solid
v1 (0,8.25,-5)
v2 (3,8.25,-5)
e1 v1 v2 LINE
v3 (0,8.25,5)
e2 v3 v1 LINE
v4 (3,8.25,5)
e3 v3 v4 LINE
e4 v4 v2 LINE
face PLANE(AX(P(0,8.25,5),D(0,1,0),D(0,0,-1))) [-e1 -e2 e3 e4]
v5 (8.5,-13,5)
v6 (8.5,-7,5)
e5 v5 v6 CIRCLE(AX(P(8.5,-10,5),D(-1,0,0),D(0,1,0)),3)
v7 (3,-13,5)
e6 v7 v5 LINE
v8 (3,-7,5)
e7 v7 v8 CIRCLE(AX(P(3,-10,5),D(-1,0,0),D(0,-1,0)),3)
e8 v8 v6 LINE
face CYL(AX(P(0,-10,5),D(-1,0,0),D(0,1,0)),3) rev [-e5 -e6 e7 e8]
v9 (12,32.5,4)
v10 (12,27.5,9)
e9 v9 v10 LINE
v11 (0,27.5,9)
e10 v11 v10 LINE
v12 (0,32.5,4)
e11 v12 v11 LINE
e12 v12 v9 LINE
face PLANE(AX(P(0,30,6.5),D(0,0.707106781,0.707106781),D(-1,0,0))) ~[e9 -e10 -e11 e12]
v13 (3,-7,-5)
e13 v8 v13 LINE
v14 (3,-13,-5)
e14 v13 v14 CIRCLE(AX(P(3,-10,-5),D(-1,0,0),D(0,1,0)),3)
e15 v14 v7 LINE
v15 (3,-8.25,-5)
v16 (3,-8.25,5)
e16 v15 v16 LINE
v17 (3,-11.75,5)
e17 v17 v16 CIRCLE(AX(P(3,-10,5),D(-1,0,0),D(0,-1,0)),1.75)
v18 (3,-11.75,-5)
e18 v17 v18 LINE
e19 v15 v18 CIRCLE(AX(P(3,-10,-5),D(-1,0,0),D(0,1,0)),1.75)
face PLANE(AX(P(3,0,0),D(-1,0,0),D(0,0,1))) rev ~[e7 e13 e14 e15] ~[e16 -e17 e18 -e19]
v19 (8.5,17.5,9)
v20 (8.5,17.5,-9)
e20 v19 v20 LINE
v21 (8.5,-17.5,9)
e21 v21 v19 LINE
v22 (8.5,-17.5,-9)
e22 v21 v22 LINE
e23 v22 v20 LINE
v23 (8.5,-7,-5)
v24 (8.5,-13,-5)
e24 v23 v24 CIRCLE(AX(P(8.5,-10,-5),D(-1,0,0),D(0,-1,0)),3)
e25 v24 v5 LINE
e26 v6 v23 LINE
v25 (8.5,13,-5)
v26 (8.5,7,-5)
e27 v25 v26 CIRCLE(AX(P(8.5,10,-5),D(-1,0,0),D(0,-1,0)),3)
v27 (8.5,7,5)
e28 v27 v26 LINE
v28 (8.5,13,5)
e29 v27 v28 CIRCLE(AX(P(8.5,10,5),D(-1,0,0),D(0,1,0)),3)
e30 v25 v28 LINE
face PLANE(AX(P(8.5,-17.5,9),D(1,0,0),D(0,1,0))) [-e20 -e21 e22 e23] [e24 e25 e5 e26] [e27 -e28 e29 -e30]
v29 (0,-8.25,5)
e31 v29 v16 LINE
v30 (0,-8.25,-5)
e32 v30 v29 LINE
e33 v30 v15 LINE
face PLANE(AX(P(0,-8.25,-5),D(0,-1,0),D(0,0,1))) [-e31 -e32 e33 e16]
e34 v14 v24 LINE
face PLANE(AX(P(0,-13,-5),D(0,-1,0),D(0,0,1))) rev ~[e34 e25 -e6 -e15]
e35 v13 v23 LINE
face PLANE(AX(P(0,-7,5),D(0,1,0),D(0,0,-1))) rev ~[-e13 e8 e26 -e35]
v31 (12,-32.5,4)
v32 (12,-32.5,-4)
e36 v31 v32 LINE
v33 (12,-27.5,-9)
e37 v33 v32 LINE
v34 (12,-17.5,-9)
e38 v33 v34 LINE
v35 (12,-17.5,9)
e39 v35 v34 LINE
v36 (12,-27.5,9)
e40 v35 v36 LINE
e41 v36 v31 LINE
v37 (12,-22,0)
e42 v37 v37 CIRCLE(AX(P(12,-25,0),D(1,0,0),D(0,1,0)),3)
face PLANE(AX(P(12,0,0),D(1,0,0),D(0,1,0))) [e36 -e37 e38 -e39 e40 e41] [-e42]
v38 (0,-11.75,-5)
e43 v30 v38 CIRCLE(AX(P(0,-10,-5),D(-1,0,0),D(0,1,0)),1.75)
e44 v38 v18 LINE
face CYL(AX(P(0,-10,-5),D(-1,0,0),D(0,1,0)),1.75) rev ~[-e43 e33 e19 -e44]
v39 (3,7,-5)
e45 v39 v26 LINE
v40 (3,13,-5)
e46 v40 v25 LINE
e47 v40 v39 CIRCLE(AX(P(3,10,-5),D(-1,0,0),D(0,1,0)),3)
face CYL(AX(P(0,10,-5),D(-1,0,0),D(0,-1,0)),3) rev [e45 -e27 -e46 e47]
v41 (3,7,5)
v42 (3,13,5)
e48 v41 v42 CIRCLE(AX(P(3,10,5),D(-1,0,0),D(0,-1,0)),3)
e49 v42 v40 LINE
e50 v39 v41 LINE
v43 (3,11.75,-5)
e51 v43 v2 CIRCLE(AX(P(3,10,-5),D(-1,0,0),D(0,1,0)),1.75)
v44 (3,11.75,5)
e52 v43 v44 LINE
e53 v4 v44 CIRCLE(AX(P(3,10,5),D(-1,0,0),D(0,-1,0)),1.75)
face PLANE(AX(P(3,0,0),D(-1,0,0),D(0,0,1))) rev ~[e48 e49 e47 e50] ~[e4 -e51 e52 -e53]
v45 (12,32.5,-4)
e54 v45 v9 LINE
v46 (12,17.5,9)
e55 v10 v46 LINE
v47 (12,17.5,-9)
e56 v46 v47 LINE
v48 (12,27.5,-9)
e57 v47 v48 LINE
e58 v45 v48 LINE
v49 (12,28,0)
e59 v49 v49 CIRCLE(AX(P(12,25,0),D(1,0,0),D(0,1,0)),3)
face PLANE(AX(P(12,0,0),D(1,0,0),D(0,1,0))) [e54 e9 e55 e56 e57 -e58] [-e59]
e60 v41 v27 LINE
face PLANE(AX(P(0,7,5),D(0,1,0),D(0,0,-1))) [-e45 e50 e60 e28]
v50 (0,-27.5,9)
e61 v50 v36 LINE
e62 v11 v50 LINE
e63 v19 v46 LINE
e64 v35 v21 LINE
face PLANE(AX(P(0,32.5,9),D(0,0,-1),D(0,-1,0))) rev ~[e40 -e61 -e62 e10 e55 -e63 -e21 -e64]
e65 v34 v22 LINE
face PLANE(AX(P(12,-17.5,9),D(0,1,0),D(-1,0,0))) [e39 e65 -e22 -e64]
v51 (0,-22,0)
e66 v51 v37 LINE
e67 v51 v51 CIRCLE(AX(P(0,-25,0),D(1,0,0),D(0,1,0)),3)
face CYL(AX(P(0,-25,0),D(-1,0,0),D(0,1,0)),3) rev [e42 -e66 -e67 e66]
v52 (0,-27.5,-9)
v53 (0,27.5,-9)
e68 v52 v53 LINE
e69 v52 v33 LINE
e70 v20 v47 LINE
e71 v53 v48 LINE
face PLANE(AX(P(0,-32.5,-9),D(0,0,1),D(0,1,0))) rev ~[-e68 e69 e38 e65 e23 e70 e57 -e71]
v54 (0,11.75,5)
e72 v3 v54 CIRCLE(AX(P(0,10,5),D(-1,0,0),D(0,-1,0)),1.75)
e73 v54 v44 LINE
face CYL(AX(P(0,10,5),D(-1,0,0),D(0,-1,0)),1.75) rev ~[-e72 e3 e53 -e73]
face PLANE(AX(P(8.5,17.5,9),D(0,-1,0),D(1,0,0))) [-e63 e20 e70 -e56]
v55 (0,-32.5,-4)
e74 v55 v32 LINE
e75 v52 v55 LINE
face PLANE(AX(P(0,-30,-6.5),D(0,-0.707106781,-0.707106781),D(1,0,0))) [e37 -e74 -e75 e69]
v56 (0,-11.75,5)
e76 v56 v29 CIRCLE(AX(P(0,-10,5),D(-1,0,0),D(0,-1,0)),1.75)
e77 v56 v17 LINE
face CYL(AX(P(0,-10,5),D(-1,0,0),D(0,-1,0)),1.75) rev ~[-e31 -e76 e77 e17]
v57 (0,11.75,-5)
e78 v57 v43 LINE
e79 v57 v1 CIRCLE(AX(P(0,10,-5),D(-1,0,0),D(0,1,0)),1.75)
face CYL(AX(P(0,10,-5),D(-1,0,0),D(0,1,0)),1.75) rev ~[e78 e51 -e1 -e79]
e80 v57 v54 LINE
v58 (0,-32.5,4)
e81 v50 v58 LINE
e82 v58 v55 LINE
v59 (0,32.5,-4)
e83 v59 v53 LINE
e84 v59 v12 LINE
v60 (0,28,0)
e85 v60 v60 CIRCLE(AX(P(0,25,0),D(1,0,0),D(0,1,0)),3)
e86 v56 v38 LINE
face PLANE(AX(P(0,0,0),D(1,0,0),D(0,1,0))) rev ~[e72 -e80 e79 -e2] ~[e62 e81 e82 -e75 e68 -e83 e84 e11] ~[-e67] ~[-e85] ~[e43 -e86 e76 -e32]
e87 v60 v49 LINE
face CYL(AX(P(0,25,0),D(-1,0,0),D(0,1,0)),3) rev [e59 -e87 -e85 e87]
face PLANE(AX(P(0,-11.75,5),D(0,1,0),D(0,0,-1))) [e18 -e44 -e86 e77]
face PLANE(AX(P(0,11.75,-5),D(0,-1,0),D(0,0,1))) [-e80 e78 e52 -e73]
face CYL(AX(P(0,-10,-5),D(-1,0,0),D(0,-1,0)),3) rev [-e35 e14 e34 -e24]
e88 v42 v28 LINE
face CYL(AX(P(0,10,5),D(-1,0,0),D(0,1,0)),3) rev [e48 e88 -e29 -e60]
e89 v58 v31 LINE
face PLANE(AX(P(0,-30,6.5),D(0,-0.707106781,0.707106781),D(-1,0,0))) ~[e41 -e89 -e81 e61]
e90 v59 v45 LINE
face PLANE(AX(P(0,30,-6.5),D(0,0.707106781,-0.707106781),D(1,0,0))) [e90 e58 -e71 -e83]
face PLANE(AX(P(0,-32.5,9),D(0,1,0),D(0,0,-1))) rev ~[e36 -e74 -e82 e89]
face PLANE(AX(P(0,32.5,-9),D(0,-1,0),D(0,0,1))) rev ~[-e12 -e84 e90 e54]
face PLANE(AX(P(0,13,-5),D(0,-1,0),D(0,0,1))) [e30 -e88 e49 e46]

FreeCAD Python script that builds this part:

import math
import FreeCAD as App
import Part
import Sketcher


def edges_at(feature, points):
    """Names of the edges that pass closest to the given points."""
    edges = feature.Shape.Edges
    near = lambda p: min(range(len(edges)), key=lambda i: edges[i].distToShape(Part.Vertex(*p))[0])
    return sorted({f"Edge{near(p) + 1}" for p in points})

doc = App.newDocument("Part")
params = doc.addObject("Spreadsheet::Sheet", "Params")
for row, (alias, value) in enumerate([
    ("sketch1_diameter", "6 mm"),
    ("sketch1_width", "65 mm"),
    ("sketch1_height", "18 mm"),
    ("sketch1_height2", "10 mm"),
    ("pad1_length", "12 mm"),
    ("sketch2_radius", "1.75 mm"),
    ("sketch2_radius2", "3 mm"),
    ("sketch2_height", "10 mm"),
    ("pad2_length", "3 mm"),
    ("chamfer_size", "5 mm"),
    ("sketch3_height", "35 mm"),
    ("sketch3_width", "3.5 mm"),
], start=1):
    params.set(f"A{row}", alias)
    params.set(f"B{row}", "=" + value)
    params.setAlias(f"B{row}", alias)

body = doc.addObject("PartDesign::Body", "Body")

sketch1 = body.newObject("Sketcher::SketchObject", "Sketch")
sketch1.AttachmentSupport = (doc.getObject("YZ_Plane"), [""])
sketch1.MapMode = "FlatFace"
sketch1.addGeometry([
    Part.LineSegment(App.Vector(32.5, -9, 0), App.Vector(32.5, 9, 0)),
    Part.LineSegment(App.Vector(32.5, 9, 0), App.Vector(-32.5, 9, 0)),
    Part.LineSegment(App.Vector(-32.5, 9, 0), App.Vector(-32.5, -9, 0)),
    Part.LineSegment(App.Vector(-32.5, -9, 0), App.Vector(32.5, -9, 0)),
    Part.Circle(App.Vector(-25, 0, 0), App.Vector(0, 0, 1), 3),
    Part.ArcOfCircle(Part.Circle(App.Vector(-10, -5, 0), App.Vector(0, 0, 1), 3), math.radians(180), math.radians(360)),
    Part.LineSegment(App.Vector(-13, -5, 0), App.Vector(-13, 5, 0)),
    Part.ArcOfCircle(Part.Circle(App.Vector(-10, 5, 0), App.Vector(0, 0, 1), 3), math.radians(0), math.radians(180)),
    Part.LineSegment(App.Vector(-7, 5, 0), App.Vector(-7, -5, 0)),
    Part.LineSegment(App.Vector(13, 5, 0), App.Vector(13, -5, 0)),
    Part.ArcOfCircle(Part.Circle(App.Vector(10, -5, 0), App.Vector(0, 0, 1), 3), math.radians(180), math.radians(360)),
    Part.LineSegment(App.Vector(7, -5, 0), App.Vector(7, 5, 0)),
    Part.ArcOfCircle(Part.Circle(App.Vector(10, 5, 0), App.Vector(0, 0, 1), 3), math.radians(0), math.radians(180)),
    Part.Circle(App.Vector(25, 0, 0), App.Vector(0, 0, 1), 3),
], False)
sketch1.addConstraint([
    Sketcher.Constraint("Coincident", 0, 2, 1, 1),
    Sketcher.Constraint("Coincident", 1, 2, 2, 1),
    Sketcher.Constraint("Coincident", 2, 2, 3, 1),
    Sketcher.Constraint("Coincident", 3, 2, 0, 1),
    Sketcher.Constraint("Tangent", 5, 1, 6, 1),
    Sketcher.Constraint("Tangent", 6, 2, 7, 2),
    Sketcher.Constraint("Tangent", 7, 1, 8, 1),
    Sketcher.Constraint("Tangent", 8, 2, 5, 2),
    Sketcher.Constraint("Tangent", 9, 2, 10, 2),
    Sketcher.Constraint("Tangent", 10, 1, 11, 1),
    Sketcher.Constraint("Tangent", 11, 2, 12, 2),
    Sketcher.Constraint("Tangent", 12, 1, 9, 1),
    Sketcher.Constraint("Vertical", 0),
    Sketcher.Constraint("Horizontal", 1),
    Sketcher.Constraint("Vertical", 2),
    Sketcher.Constraint("Horizontal", 3),
    Sketcher.Constraint("Vertical", 6),
    Sketcher.Constraint("Vertical", 8),
    Sketcher.Constraint("Vertical", 9),
    Sketcher.Constraint("Vertical", 11),
    Sketcher.Constraint("Equal", 4, 5),
    Sketcher.Constraint("Equal", 7, 10),
    Sketcher.Constraint("Equal", 12, 13),
    Sketcher.Constraint("Symmetric", 7, 3, 10, 3, -1, 1),
    Sketcher.Constraint("Symmetric", 4, 3, 13, 3, -1, 1),
    Sketcher.Constraint("Symmetric", 0, 2, 2, 2, -1, 1),
    Sketcher.Constraint("PointOnObject", 4, 3, -1),
    Sketcher.Constraint("Horizontal", 5, 3, 10, 3),
    Sketcher.Constraint("Horizontal", 7, 3, 12, 3),
    Sketcher.Constraint("Diameter", 4, 6.0),
    Sketcher.Constraint("DistanceX", 1, 2, 1, 1, 65.0),
    Sketcher.Constraint("DistanceY", 0, 1, 0, 2, 18.0),
    Sketcher.Constraint("DistanceY", 6, 1, 6, 2, 10.0),
    Sketcher.Constraint("DistanceX", 4, 3, -1, 1, 25.0),
    Sketcher.Constraint("DistanceX", 5, 3, -1, 1, 10.0),
])
sketch1.setExpression("Constraints[29]", "Params.sketch1_diameter")
sketch1.setExpression("Constraints[30]", "Params.sketch1_width")
sketch1.setExpression("Constraints[31]", "Params.sketch1_height")
sketch1.setExpression("Constraints[32]", "Params.sketch1_height2")
pad1 = body.newObject("PartDesign::Pad", "Pad")
pad1.Profile = sketch1
pad1.setExpression("Length", "Params.pad1_length")

sketch2 = body.newObject("Sketcher::SketchObject", "Sketch001")
sketch2.AttachmentSupport = (doc.getObject("YZ_Plane"), [""])
sketch2.MapMode = "FlatFace"
sketch2.addGeometry([
    Part.LineSegment(App.Vector(13, 5, 0), App.Vector(13, -5, 0)),
    Part.ArcOfCircle(Part.Circle(App.Vector(10, -5, 0), App.Vector(0, 0, 1), 3), math.radians(180), math.radians(360)),
    Part.LineSegment(App.Vector(7, -5, 0), App.Vector(7, 5, 0)),
    Part.ArcOfCircle(Part.Circle(App.Vector(10, 5, 0), App.Vector(0, 0, 1), 3), math.radians(0), math.radians(180)),
    Part.ArcOfCircle(Part.Circle(App.Vector(10, 5, 0), App.Vector(0, 0, 1), 1.75), math.radians(0), math.radians(180)),
    Part.LineSegment(App.Vector(8.25, 5, 0), App.Vector(8.25, -5, 0)),
    Part.ArcOfCircle(Part.Circle(App.Vector(10, -5, 0), App.Vector(0, 0, 1), 1.75), math.radians(180), math.radians(360)),
    Part.LineSegment(App.Vector(11.75, -5, 0), App.Vector(11.75, 5, 0)),
    Part.ArcOfCircle(Part.Circle(App.Vector(-10, 5, 0), App.Vector(0, 0, 1), 3), math.radians(0), math.radians(180)),
    Part.LineSegment(App.Vector(-7, 5, 0), App.Vector(-7, -5, 0)),
    Part.ArcOfCircle(Part.Circle(App.Vector(-10, -5, 0), App.Vector(0, 0, 1), 3), math.radians(180), math.radians(360)),
    Part.LineSegment(App.Vector(-13, -5, 0), App.Vector(-13, 5, 0)),
    Part.ArcOfCircle(Part.Circle(App.Vector(-10, 5, 0), App.Vector(0, 0, 1), 1.75), math.radians(0), math.radians(180)),
    Part.LineSegment(App.Vector(-11.75, 5, 0), App.Vector(-11.75, -5, 0)),
    Part.ArcOfCircle(Part.Circle(App.Vector(-10, -5, 0), App.Vector(0, 0, 1), 1.75), math.radians(180), math.radians(360)),
    Part.LineSegment(App.Vector(-8.25, -5, 0), App.Vector(-8.25, 5, 0)),
], False)
sketch2.addConstraint([
    Sketcher.Constraint("Tangent", 0, 2, 1, 2),
    Sketcher.Constraint("Tangent", 1, 1, 2, 1),
    Sketcher.Constraint("Tangent", 2, 2, 3, 2),
    Sketcher.Constraint("Tangent", 3, 1, 0, 1),
    Sketcher.Constraint("Tangent", 4, 2, 5, 1),
    Sketcher.Constraint("Tangent", 5, 2, 6, 1),
    Sketcher.Constraint("Tangent", 6, 2, 7, 1),
    Sketcher.Constraint("Tangent", 7, 2, 4, 1),
    Sketcher.Constraint("Tangent", 8, 1, 9, 1),
    Sketcher.Constraint("Tangent", 9, 2, 10, 2),
    Sketcher.Constraint("Tangent", 10, 1, 11, 1),
    Sketcher.Constraint("Tangent", 11, 2, 8, 2),
    Sketcher.Constraint("Tangent", 12, 2, 13, 1),
    Sketcher.Constraint("Tangent", 13, 2, 14, 1),
    Sketcher.Constraint("Tangent", 14, 2, 15, 1),
    Sketcher.Constraint("Tangent", 15, 2, 12, 1),
    Sketcher.Constraint("Vertical", 0),
    Sketcher.Constraint("Vertical", 2),
    Sketcher.Constraint("Vertical", 5),
    Sketcher.Constraint("Vertical", 7),
    Sketcher.Constraint("Vertical", 9),
    Sketcher.Constraint("Vertical", 11),
    Sketcher.Constraint("Vertical", 13),
    Sketcher.Constraint("Vertical", 15),
    Sketcher.Constraint("Coincident", 4, 3, 3, 3),
    Sketcher.Constraint("Coincident", 12, 3, 8, 3),
    Sketcher.Constraint("Equal", 3, 8),
    Sketcher.Constraint("Equal", 6, 12),
    Sketcher.Constraint("Symmetric", 1, 3, 8, 3, -1, 1),
    Sketcher.Constraint("Horizontal", 4, 3, 8, 3),
    Sketcher.Constraint("Horizontal", 6, 3, 10, 3),
    Sketcher.Constraint("Horizontal", 6, 3, 14, 3),
    Sketcher.Constraint("Horizontal", 14, 3, 0, 2),
    Sketcher.Constraint("Radius", 4, 1.75),
    Sketcher.Constraint("Radius", 1, 3.0),
    Sketcher.Constraint("DistanceY", 0, 2, 0, 1, 10.0),
    Sketcher.Constraint("DistanceX", -1, 1, 1, 3, 10.0),
])
sketch2.setExpression("Constraints[33]", "Params.sketch2_radius")
sketch2.setExpression("Constraints[34]", "Params.sketch2_radius2")
sketch2.setExpression("Constraints[35]", "Params.sketch2_height")
pad2 = body.newObject("PartDesign::Pad", "Pad001")
pad2.Profile = sketch2
pad2.setExpression("Length", "Params.pad2_length")
doc.recompute()

chamfer = body.newObject("PartDesign::Chamfer", "Chamfer")
chamfer.Base = (pad2, edges_at(pad2, [
    (6, -32.5, 9),
    (6, -32.5, -9),
    (6, 32.5, -9),
    (6, 32.5, 9),
]))
chamfer.setExpression("Size", "Params.chamfer_size")

sketch3 = body.newObject("Sketcher::SketchObject", "Sketch002")
sketch3.AttachmentSupport = (doc.getObject("XY_Plane"), [""])
sketch3.MapMode = "FlatFace"
sketch3.AttachmentOffset = App.Placement(App.Vector(0, 0, 9), App.Rotation())
sketch3.addGeometry([
    Part.LineSegment(App.Vector(12, -17.5, 0), App.Vector(12, 17.5, 0)),
    Part.LineSegment(App.Vector(12, 17.5, 0), App.Vector(8.5, 17.5, 0)),
    Part.LineSegment(App.Vector(8.5, 17.5, 0), App.Vector(8.5, -17.5, 0)),
    Part.LineSegment(App.Vector(8.5, -17.5, 0), App.Vector(12, -17.5, 0)),
], False)
sketch3.addConstraint([
    Sketcher.Constraint("Coincident", 0, 2, 1, 1),
    Sketcher.Constraint("Coincident", 1, 2, 2, 1),
    Sketcher.Constraint("Coincident", 2, 2, 3, 1),
    Sketcher.Constraint("Coincident", 3, 2, 0, 1),
    Sketcher.Constraint("Vertical", 0),
    Sketcher.Constraint("Horizontal", 1),
    Sketcher.Constraint("Vertical", 2),
    Sketcher.Constraint("Horizontal", 3),
    Sketcher.Constraint("DistanceY", 0, 1, 0, 2, 35.0),
    Sketcher.Constraint("DistanceX", 1, 2, 1, 1, 3.5),
    Sketcher.Constraint("DistanceX", -1, 1, 0, 2, 12.0),
    Sketcher.Constraint("DistanceY", -1, 1, 0, 2, 17.5),
])
sketch3.setExpression("Constraints[8]", "Params.sketch3_height")
sketch3.setExpression("Constraints[9]", "Params.sketch3_width")
pocket1 = body.newObject("PartDesign::Pocket", "Pocket")
pocket1.Profile = sketch3
pocket1.Type = "ThroughAll"

doc.recompute()
